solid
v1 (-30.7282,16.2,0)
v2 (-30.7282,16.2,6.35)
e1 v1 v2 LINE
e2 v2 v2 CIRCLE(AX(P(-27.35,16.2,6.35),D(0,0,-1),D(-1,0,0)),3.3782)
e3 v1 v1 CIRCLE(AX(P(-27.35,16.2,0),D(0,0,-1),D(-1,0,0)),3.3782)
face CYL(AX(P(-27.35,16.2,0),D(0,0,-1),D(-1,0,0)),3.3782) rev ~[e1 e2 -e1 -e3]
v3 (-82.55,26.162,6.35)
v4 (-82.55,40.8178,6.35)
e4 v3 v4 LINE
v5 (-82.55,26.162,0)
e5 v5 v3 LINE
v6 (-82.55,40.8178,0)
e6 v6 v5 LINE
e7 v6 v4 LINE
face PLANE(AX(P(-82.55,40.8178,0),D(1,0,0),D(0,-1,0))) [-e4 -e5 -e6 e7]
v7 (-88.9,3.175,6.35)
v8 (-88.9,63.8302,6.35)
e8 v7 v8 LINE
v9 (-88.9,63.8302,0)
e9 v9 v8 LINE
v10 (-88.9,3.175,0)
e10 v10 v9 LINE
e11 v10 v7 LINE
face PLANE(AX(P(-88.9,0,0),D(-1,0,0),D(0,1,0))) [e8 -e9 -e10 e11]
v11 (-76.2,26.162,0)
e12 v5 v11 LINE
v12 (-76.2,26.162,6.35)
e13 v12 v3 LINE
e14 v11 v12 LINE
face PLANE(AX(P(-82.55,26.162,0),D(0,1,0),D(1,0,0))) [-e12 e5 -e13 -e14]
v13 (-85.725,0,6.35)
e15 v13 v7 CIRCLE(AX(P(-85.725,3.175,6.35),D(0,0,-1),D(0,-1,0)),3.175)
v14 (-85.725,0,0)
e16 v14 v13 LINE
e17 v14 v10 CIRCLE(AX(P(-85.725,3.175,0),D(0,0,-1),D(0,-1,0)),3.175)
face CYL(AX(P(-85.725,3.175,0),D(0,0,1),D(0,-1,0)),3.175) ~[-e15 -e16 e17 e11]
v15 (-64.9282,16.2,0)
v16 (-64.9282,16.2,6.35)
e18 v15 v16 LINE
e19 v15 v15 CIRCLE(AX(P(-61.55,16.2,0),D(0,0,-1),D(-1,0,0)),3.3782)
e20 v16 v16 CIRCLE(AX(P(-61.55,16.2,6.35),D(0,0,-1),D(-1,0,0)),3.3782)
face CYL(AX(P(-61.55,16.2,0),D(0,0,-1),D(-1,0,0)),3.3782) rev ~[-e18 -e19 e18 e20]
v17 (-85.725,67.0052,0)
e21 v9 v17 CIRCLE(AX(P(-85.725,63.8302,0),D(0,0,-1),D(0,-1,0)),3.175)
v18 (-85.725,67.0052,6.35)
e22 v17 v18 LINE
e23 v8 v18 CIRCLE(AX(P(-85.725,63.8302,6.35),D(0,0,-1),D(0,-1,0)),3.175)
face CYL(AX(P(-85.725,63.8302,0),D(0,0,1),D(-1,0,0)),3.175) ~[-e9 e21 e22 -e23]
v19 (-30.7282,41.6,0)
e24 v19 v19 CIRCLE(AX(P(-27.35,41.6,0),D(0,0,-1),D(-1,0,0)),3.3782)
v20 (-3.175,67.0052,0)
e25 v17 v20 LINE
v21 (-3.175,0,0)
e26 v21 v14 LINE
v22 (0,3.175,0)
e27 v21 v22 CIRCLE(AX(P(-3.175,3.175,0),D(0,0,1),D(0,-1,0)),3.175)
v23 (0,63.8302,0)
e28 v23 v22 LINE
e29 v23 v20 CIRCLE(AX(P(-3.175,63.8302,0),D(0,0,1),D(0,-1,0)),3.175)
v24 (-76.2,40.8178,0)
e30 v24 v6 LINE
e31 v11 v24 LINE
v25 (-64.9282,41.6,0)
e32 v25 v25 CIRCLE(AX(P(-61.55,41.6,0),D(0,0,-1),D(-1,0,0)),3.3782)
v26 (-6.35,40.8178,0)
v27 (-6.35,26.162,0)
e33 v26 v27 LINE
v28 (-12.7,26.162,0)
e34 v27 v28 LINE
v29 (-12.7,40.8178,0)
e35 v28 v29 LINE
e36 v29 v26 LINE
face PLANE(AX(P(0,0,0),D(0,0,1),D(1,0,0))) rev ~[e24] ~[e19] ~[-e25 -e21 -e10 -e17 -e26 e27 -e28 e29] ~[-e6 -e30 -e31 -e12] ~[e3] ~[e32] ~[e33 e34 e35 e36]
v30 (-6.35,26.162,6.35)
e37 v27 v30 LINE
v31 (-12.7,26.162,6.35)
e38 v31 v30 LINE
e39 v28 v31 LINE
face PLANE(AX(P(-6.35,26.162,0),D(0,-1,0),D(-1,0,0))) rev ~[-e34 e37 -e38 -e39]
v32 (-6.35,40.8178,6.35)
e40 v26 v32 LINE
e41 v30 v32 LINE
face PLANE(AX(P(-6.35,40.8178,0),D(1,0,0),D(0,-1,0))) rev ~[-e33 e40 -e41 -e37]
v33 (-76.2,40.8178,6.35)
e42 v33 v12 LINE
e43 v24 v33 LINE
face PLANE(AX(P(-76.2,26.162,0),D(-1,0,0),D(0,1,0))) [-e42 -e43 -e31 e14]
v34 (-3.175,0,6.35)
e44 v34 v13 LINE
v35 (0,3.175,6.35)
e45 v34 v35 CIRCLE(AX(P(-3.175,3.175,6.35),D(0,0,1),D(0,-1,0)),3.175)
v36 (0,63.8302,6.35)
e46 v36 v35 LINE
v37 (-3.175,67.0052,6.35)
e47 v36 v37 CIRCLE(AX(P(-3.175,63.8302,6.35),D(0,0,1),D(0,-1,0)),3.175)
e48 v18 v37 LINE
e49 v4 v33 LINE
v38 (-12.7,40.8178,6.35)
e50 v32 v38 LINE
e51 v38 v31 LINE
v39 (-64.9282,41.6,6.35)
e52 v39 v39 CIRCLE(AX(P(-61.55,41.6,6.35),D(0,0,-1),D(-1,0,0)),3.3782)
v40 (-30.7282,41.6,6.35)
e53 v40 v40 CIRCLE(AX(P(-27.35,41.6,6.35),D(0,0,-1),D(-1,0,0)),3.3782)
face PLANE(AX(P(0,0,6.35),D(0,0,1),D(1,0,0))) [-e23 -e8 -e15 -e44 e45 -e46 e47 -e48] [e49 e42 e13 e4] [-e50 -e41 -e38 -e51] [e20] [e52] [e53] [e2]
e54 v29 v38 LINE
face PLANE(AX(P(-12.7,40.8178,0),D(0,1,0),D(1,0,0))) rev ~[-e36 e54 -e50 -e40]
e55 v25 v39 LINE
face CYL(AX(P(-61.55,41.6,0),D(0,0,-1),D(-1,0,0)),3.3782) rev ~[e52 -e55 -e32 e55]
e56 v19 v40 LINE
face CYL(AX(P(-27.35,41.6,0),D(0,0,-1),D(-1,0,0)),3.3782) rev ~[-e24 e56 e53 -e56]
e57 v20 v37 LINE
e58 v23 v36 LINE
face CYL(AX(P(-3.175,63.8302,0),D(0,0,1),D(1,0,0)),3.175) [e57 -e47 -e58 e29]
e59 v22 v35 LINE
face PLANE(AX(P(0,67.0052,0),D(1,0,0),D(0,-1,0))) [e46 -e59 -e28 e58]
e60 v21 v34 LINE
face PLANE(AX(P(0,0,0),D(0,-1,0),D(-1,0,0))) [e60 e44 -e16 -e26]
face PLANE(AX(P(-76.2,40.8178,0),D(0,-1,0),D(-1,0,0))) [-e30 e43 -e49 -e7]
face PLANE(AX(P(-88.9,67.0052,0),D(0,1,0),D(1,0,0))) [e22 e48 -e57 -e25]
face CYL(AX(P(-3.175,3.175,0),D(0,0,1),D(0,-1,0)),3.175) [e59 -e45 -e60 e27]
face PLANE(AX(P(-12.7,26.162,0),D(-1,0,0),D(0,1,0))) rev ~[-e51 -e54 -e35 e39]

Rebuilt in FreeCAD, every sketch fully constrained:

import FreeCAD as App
import Part
import Sketcher
from FreeCAD import Vector
Q = App.Units.Quantity


def edges_at(feature, points):
    """Names of the edges that pass closest to the given points."""
    edges = feature.Shape.Edges
    near = lambda p: min(range(len(edges)), key=lambda i: edges[i].distToShape(Part.Vertex(*p))[0])
    return sorted({f"Edge{near(p) + 1}" for p in points})

doc = App.newDocument("Part")
body = doc.addObject("PartDesign::Body", "Body")

# Sketch on XY plane
sketch1 = body.newObject("Sketcher::SketchObject", "Sketch")
sketch1.AttachmentSupport = (doc.getObject("XY_Plane"), [""])
sketch1.MapMode = "FlatFace"
sketch1.addGeometry(Part.LineSegment(Vector(-89, 0, 0), Vector(0, 0, 0)), False)
sketch1.addGeometry(Part.LineSegment(Vector(0, 0, 0), Vector(0, 67, 0)), False)
sketch1.addGeometry(Part.LineSegment(Vector(0, 67, 0), Vector(-89, 67, 0)), False)
sketch1.addGeometry(Part.LineSegment(Vector(-89, 67, 0), Vector(-89, 0, 0)), False)
sketch1.addConstraint(Sketcher.Constraint("Coincident", 0, 2, 1, 1))
sketch1.addConstraint(Sketcher.Constraint("Coincident", 1, 2, 2, 1))
sketch1.addConstraint(Sketcher.Constraint("Coincident", 2, 2, 3, 1))
sketch1.addConstraint(Sketcher.Constraint("Coincident", 3, 2, 0, 1))
sketch1.addConstraint(Sketcher.Constraint("Horizontal", 0))
sketch1.addConstraint(Sketcher.Constraint("Vertical", 1))
sketch1.addConstraint(Sketcher.Constraint("Horizontal", 2))
sketch1.addConstraint(Sketcher.Constraint("Vertical", 3))
sketch1.addConstraint(Sketcher.Constraint("Coincident", 0, 2, -1, 1))
sketch1.addConstraint(Sketcher.Constraint("DistanceX", 0, 1, 0, 2, Q("3.5 in")))
sketch1.addConstraint(Sketcher.Constraint("DistanceY", 1, 1, 1, 2, Q("2.638 in")))
pad1 = body.newObject("PartDesign::Pad", "Pad")
pad1.Profile = sketch1
pad1.Length = Q("0.25 in")

# Sketch on XY plane
sketch2 = body.newObject("Sketcher::SketchObject", "Sketch001")
sketch2.AttachmentSupport = (doc.getObject("XY_Plane"), [""])
sketch2.MapMode = "FlatFace"
sketch2.addGeometry(Part.LineSegment(Vector(-13, 41, 0), Vector(-6, 41, 0)), False)
sketch2.addGeometry(Part.LineSegment(Vector(-6, 41, 0), Vector(-6, 26, 0)), False)
sketch2.addGeometry(Part.LineSegment(Vector(-6, 26, 0), Vector(-13, 26, 0)), False)
sketch2.addGeometry(Part.LineSegment(Vector(-13, 26, 0), Vector(-13, 41, 0)), False)
sketch2.addGeometry(Part.LineSegment(Vector(-83, 26, 0), Vector(-83, 41, 0)), False)
sketch2.addGeometry(Part.LineSegment(Vector(-83, 41, 0), Vector(-76, 41, 0)), False)
sketch2.addGeometry(Part.LineSegment(Vector(-76, 41, 0), Vector(-76, 26, 0)), False)
sketch2.addGeometry(Part.LineSegment(Vector(-76, 26, 0), Vector(-83, 26, 0)), False)
sketch2.addConstraint(Sketcher.Constraint("Coincident", 0, 2, 1, 1))
sketch2.addConstraint(Sketcher.Constraint("Coincident", 1, 2, 2, 1))
sketch2.addConstraint(Sketcher.Constraint("Coincident", 2, 2, 3, 1))
sketch2.addConstraint(Sketcher.Constraint("Coincident", 3, 2, 0, 1))
sketch2.addConstraint(Sketcher.Constraint("Coincident", 4, 2, 5, 1))
sketch2.addConstraint(Sketcher.Constraint("Coincident", 5, 2, 6, 1))
sketch2.addConstraint(Sketcher.Constraint("Coincident", 6, 2, 7, 1))
sketch2.addConstraint(Sketcher.Constraint("Coincident", 7, 2, 4, 1))
sketch2.addConstraint(Sketcher.Constraint("Horizontal", 0))
sketch2.addConstraint(Sketcher.Constraint("Vertical", 1))
sketch2.addConstraint(Sketcher.Constraint("Horizontal", 2))
sketch2.addConstraint(Sketcher.Constraint("Vertical", 3))
sketch2.addConstraint(Sketcher.Constraint("Vertical", 4))
sketch2.addConstraint(Sketcher.Constraint("Horizontal", 5))
sketch2.addConstraint(Sketcher.Constraint("Vertical", 6))
sketch2.addConstraint(Sketcher.Constraint("Horizontal", 7))
sketch2.addConstraint(Sketcher.Constraint("Horizontal", 3, 2, 4, 2))
sketch2.addConstraint(Sketcher.Constraint("Horizontal", 2, 2, 6, 2))
sketch2.addConstraint(Sketcher.Constraint("Equal", 2, 5))
sketch2.addConstraint(Sketcher.Constraint("DistanceX", 0, 1, 0, 2, Q("0.25 in")))
sketch2.addConstraint(Sketcher.Constraint("DistanceY", 1, 2, 1, 1, Q("0.577 in")))
sketch2.addConstraint(Sketcher.Constraint("DistanceX", 0, 2, -1, 1, Q("0.25 in")))
sketch2.addConstraint(Sketcher.Constraint("DistanceX", 5, 2, -1, 1, Q("3 in")))
sketch2.addConstraint(Sketcher.Constraint("DistanceY", -1, 1, 1, 2, Q("1.03 in")))
pocket1 = body.newObject("PartDesign::Pocket", "Pocket")
pocket1.Profile = sketch2
pocket1.Length = Q("1 in")
pocket1.Reversed = True
doc.recompute()

fillet = body.newObject("PartDesign::Fillet", "Fillet")
fillet.Base = (pocket1, edges_at(pocket1, [
    (0, 67.005, 3.175),
    (0, 0, 3.175),
    (-88.9, 0, 3.175),
    (-88.9, 67.005, 3.175),
]))
fillet.Radius = Q("0.125 in")

# Sketch on XY plane
sketch3 = body.newObject("Sketcher::SketchObject", "Sketch002")
sketch3.AttachmentSupport = (doc.getObject("XY_Plane"), [""])
sketch3.MapMode = "FlatFace"
sketch3.addGeometry(Part.Circle(Vector(-61.5, 41.6, 0), Vector(0, 0, 1), 3.4), False)
sketch3.addGeometry(Part.Circle(Vector(-61.5, 16.2, 0), Vector(0, 0, 1), 3.4), False)
sketch3.addGeometry(Part.Circle(Vector(-27.4, 41.6, 0), Vector(0, 0, 1), 3.4), False)
sketch3.addGeometry(Part.Circle(Vector(-27.4, 16.2, 0), Vector(0, 0, 1), 3.4), False)
sketch3.addConstraint(Sketcher.Constraint("Equal", 0, 1))
sketch3.addConstraint(Sketcher.Constraint("Equal", 1, 2))
sketch3.addConstraint(Sketcher.Constraint("Equal", 2, 3))
sketch3.addConstraint(Sketcher.Constraint("Horizontal", 0, 3, 2, 3))
sketch3.addConstraint(Sketcher.Constraint("Horizontal", 1, 3, 3, 3))
sketch3.addConstraint(Sketcher.Constraint("Vertical", 0, 3, 1, 3))
sketch3.addConstraint(Sketcher.Constraint("Vertical", 2, 3, 3, 3))
sketch3.addConstraint(Sketcher.Constraint("Diameter", 0, Q("0.266 in")))
sketch3.addConstraint(Sketcher.Constraint("DistanceY", 1, 3, 0, 3, Q("1 in")))
sketch3.addConstraint(Sketcher.Constraint("DistanceY", -1, 1, 0, 3, Q("1.6378 in")))
sketch3.addConstraint(Sketcher.Constraint("DistanceX", 0, 3, -1, 1, 61.55))
sketch3.addConstraint(Sketcher.Constraint("DistanceX", 2, 3, -1, 1, 27.35))
pocket2 = body.newObject("PartDesign::Pocket", "Pocket001")
pocket2.Profile = sketch3
pocket2.Length = Q("1 in")
pocket2.Reversed = True

doc.recompute()
